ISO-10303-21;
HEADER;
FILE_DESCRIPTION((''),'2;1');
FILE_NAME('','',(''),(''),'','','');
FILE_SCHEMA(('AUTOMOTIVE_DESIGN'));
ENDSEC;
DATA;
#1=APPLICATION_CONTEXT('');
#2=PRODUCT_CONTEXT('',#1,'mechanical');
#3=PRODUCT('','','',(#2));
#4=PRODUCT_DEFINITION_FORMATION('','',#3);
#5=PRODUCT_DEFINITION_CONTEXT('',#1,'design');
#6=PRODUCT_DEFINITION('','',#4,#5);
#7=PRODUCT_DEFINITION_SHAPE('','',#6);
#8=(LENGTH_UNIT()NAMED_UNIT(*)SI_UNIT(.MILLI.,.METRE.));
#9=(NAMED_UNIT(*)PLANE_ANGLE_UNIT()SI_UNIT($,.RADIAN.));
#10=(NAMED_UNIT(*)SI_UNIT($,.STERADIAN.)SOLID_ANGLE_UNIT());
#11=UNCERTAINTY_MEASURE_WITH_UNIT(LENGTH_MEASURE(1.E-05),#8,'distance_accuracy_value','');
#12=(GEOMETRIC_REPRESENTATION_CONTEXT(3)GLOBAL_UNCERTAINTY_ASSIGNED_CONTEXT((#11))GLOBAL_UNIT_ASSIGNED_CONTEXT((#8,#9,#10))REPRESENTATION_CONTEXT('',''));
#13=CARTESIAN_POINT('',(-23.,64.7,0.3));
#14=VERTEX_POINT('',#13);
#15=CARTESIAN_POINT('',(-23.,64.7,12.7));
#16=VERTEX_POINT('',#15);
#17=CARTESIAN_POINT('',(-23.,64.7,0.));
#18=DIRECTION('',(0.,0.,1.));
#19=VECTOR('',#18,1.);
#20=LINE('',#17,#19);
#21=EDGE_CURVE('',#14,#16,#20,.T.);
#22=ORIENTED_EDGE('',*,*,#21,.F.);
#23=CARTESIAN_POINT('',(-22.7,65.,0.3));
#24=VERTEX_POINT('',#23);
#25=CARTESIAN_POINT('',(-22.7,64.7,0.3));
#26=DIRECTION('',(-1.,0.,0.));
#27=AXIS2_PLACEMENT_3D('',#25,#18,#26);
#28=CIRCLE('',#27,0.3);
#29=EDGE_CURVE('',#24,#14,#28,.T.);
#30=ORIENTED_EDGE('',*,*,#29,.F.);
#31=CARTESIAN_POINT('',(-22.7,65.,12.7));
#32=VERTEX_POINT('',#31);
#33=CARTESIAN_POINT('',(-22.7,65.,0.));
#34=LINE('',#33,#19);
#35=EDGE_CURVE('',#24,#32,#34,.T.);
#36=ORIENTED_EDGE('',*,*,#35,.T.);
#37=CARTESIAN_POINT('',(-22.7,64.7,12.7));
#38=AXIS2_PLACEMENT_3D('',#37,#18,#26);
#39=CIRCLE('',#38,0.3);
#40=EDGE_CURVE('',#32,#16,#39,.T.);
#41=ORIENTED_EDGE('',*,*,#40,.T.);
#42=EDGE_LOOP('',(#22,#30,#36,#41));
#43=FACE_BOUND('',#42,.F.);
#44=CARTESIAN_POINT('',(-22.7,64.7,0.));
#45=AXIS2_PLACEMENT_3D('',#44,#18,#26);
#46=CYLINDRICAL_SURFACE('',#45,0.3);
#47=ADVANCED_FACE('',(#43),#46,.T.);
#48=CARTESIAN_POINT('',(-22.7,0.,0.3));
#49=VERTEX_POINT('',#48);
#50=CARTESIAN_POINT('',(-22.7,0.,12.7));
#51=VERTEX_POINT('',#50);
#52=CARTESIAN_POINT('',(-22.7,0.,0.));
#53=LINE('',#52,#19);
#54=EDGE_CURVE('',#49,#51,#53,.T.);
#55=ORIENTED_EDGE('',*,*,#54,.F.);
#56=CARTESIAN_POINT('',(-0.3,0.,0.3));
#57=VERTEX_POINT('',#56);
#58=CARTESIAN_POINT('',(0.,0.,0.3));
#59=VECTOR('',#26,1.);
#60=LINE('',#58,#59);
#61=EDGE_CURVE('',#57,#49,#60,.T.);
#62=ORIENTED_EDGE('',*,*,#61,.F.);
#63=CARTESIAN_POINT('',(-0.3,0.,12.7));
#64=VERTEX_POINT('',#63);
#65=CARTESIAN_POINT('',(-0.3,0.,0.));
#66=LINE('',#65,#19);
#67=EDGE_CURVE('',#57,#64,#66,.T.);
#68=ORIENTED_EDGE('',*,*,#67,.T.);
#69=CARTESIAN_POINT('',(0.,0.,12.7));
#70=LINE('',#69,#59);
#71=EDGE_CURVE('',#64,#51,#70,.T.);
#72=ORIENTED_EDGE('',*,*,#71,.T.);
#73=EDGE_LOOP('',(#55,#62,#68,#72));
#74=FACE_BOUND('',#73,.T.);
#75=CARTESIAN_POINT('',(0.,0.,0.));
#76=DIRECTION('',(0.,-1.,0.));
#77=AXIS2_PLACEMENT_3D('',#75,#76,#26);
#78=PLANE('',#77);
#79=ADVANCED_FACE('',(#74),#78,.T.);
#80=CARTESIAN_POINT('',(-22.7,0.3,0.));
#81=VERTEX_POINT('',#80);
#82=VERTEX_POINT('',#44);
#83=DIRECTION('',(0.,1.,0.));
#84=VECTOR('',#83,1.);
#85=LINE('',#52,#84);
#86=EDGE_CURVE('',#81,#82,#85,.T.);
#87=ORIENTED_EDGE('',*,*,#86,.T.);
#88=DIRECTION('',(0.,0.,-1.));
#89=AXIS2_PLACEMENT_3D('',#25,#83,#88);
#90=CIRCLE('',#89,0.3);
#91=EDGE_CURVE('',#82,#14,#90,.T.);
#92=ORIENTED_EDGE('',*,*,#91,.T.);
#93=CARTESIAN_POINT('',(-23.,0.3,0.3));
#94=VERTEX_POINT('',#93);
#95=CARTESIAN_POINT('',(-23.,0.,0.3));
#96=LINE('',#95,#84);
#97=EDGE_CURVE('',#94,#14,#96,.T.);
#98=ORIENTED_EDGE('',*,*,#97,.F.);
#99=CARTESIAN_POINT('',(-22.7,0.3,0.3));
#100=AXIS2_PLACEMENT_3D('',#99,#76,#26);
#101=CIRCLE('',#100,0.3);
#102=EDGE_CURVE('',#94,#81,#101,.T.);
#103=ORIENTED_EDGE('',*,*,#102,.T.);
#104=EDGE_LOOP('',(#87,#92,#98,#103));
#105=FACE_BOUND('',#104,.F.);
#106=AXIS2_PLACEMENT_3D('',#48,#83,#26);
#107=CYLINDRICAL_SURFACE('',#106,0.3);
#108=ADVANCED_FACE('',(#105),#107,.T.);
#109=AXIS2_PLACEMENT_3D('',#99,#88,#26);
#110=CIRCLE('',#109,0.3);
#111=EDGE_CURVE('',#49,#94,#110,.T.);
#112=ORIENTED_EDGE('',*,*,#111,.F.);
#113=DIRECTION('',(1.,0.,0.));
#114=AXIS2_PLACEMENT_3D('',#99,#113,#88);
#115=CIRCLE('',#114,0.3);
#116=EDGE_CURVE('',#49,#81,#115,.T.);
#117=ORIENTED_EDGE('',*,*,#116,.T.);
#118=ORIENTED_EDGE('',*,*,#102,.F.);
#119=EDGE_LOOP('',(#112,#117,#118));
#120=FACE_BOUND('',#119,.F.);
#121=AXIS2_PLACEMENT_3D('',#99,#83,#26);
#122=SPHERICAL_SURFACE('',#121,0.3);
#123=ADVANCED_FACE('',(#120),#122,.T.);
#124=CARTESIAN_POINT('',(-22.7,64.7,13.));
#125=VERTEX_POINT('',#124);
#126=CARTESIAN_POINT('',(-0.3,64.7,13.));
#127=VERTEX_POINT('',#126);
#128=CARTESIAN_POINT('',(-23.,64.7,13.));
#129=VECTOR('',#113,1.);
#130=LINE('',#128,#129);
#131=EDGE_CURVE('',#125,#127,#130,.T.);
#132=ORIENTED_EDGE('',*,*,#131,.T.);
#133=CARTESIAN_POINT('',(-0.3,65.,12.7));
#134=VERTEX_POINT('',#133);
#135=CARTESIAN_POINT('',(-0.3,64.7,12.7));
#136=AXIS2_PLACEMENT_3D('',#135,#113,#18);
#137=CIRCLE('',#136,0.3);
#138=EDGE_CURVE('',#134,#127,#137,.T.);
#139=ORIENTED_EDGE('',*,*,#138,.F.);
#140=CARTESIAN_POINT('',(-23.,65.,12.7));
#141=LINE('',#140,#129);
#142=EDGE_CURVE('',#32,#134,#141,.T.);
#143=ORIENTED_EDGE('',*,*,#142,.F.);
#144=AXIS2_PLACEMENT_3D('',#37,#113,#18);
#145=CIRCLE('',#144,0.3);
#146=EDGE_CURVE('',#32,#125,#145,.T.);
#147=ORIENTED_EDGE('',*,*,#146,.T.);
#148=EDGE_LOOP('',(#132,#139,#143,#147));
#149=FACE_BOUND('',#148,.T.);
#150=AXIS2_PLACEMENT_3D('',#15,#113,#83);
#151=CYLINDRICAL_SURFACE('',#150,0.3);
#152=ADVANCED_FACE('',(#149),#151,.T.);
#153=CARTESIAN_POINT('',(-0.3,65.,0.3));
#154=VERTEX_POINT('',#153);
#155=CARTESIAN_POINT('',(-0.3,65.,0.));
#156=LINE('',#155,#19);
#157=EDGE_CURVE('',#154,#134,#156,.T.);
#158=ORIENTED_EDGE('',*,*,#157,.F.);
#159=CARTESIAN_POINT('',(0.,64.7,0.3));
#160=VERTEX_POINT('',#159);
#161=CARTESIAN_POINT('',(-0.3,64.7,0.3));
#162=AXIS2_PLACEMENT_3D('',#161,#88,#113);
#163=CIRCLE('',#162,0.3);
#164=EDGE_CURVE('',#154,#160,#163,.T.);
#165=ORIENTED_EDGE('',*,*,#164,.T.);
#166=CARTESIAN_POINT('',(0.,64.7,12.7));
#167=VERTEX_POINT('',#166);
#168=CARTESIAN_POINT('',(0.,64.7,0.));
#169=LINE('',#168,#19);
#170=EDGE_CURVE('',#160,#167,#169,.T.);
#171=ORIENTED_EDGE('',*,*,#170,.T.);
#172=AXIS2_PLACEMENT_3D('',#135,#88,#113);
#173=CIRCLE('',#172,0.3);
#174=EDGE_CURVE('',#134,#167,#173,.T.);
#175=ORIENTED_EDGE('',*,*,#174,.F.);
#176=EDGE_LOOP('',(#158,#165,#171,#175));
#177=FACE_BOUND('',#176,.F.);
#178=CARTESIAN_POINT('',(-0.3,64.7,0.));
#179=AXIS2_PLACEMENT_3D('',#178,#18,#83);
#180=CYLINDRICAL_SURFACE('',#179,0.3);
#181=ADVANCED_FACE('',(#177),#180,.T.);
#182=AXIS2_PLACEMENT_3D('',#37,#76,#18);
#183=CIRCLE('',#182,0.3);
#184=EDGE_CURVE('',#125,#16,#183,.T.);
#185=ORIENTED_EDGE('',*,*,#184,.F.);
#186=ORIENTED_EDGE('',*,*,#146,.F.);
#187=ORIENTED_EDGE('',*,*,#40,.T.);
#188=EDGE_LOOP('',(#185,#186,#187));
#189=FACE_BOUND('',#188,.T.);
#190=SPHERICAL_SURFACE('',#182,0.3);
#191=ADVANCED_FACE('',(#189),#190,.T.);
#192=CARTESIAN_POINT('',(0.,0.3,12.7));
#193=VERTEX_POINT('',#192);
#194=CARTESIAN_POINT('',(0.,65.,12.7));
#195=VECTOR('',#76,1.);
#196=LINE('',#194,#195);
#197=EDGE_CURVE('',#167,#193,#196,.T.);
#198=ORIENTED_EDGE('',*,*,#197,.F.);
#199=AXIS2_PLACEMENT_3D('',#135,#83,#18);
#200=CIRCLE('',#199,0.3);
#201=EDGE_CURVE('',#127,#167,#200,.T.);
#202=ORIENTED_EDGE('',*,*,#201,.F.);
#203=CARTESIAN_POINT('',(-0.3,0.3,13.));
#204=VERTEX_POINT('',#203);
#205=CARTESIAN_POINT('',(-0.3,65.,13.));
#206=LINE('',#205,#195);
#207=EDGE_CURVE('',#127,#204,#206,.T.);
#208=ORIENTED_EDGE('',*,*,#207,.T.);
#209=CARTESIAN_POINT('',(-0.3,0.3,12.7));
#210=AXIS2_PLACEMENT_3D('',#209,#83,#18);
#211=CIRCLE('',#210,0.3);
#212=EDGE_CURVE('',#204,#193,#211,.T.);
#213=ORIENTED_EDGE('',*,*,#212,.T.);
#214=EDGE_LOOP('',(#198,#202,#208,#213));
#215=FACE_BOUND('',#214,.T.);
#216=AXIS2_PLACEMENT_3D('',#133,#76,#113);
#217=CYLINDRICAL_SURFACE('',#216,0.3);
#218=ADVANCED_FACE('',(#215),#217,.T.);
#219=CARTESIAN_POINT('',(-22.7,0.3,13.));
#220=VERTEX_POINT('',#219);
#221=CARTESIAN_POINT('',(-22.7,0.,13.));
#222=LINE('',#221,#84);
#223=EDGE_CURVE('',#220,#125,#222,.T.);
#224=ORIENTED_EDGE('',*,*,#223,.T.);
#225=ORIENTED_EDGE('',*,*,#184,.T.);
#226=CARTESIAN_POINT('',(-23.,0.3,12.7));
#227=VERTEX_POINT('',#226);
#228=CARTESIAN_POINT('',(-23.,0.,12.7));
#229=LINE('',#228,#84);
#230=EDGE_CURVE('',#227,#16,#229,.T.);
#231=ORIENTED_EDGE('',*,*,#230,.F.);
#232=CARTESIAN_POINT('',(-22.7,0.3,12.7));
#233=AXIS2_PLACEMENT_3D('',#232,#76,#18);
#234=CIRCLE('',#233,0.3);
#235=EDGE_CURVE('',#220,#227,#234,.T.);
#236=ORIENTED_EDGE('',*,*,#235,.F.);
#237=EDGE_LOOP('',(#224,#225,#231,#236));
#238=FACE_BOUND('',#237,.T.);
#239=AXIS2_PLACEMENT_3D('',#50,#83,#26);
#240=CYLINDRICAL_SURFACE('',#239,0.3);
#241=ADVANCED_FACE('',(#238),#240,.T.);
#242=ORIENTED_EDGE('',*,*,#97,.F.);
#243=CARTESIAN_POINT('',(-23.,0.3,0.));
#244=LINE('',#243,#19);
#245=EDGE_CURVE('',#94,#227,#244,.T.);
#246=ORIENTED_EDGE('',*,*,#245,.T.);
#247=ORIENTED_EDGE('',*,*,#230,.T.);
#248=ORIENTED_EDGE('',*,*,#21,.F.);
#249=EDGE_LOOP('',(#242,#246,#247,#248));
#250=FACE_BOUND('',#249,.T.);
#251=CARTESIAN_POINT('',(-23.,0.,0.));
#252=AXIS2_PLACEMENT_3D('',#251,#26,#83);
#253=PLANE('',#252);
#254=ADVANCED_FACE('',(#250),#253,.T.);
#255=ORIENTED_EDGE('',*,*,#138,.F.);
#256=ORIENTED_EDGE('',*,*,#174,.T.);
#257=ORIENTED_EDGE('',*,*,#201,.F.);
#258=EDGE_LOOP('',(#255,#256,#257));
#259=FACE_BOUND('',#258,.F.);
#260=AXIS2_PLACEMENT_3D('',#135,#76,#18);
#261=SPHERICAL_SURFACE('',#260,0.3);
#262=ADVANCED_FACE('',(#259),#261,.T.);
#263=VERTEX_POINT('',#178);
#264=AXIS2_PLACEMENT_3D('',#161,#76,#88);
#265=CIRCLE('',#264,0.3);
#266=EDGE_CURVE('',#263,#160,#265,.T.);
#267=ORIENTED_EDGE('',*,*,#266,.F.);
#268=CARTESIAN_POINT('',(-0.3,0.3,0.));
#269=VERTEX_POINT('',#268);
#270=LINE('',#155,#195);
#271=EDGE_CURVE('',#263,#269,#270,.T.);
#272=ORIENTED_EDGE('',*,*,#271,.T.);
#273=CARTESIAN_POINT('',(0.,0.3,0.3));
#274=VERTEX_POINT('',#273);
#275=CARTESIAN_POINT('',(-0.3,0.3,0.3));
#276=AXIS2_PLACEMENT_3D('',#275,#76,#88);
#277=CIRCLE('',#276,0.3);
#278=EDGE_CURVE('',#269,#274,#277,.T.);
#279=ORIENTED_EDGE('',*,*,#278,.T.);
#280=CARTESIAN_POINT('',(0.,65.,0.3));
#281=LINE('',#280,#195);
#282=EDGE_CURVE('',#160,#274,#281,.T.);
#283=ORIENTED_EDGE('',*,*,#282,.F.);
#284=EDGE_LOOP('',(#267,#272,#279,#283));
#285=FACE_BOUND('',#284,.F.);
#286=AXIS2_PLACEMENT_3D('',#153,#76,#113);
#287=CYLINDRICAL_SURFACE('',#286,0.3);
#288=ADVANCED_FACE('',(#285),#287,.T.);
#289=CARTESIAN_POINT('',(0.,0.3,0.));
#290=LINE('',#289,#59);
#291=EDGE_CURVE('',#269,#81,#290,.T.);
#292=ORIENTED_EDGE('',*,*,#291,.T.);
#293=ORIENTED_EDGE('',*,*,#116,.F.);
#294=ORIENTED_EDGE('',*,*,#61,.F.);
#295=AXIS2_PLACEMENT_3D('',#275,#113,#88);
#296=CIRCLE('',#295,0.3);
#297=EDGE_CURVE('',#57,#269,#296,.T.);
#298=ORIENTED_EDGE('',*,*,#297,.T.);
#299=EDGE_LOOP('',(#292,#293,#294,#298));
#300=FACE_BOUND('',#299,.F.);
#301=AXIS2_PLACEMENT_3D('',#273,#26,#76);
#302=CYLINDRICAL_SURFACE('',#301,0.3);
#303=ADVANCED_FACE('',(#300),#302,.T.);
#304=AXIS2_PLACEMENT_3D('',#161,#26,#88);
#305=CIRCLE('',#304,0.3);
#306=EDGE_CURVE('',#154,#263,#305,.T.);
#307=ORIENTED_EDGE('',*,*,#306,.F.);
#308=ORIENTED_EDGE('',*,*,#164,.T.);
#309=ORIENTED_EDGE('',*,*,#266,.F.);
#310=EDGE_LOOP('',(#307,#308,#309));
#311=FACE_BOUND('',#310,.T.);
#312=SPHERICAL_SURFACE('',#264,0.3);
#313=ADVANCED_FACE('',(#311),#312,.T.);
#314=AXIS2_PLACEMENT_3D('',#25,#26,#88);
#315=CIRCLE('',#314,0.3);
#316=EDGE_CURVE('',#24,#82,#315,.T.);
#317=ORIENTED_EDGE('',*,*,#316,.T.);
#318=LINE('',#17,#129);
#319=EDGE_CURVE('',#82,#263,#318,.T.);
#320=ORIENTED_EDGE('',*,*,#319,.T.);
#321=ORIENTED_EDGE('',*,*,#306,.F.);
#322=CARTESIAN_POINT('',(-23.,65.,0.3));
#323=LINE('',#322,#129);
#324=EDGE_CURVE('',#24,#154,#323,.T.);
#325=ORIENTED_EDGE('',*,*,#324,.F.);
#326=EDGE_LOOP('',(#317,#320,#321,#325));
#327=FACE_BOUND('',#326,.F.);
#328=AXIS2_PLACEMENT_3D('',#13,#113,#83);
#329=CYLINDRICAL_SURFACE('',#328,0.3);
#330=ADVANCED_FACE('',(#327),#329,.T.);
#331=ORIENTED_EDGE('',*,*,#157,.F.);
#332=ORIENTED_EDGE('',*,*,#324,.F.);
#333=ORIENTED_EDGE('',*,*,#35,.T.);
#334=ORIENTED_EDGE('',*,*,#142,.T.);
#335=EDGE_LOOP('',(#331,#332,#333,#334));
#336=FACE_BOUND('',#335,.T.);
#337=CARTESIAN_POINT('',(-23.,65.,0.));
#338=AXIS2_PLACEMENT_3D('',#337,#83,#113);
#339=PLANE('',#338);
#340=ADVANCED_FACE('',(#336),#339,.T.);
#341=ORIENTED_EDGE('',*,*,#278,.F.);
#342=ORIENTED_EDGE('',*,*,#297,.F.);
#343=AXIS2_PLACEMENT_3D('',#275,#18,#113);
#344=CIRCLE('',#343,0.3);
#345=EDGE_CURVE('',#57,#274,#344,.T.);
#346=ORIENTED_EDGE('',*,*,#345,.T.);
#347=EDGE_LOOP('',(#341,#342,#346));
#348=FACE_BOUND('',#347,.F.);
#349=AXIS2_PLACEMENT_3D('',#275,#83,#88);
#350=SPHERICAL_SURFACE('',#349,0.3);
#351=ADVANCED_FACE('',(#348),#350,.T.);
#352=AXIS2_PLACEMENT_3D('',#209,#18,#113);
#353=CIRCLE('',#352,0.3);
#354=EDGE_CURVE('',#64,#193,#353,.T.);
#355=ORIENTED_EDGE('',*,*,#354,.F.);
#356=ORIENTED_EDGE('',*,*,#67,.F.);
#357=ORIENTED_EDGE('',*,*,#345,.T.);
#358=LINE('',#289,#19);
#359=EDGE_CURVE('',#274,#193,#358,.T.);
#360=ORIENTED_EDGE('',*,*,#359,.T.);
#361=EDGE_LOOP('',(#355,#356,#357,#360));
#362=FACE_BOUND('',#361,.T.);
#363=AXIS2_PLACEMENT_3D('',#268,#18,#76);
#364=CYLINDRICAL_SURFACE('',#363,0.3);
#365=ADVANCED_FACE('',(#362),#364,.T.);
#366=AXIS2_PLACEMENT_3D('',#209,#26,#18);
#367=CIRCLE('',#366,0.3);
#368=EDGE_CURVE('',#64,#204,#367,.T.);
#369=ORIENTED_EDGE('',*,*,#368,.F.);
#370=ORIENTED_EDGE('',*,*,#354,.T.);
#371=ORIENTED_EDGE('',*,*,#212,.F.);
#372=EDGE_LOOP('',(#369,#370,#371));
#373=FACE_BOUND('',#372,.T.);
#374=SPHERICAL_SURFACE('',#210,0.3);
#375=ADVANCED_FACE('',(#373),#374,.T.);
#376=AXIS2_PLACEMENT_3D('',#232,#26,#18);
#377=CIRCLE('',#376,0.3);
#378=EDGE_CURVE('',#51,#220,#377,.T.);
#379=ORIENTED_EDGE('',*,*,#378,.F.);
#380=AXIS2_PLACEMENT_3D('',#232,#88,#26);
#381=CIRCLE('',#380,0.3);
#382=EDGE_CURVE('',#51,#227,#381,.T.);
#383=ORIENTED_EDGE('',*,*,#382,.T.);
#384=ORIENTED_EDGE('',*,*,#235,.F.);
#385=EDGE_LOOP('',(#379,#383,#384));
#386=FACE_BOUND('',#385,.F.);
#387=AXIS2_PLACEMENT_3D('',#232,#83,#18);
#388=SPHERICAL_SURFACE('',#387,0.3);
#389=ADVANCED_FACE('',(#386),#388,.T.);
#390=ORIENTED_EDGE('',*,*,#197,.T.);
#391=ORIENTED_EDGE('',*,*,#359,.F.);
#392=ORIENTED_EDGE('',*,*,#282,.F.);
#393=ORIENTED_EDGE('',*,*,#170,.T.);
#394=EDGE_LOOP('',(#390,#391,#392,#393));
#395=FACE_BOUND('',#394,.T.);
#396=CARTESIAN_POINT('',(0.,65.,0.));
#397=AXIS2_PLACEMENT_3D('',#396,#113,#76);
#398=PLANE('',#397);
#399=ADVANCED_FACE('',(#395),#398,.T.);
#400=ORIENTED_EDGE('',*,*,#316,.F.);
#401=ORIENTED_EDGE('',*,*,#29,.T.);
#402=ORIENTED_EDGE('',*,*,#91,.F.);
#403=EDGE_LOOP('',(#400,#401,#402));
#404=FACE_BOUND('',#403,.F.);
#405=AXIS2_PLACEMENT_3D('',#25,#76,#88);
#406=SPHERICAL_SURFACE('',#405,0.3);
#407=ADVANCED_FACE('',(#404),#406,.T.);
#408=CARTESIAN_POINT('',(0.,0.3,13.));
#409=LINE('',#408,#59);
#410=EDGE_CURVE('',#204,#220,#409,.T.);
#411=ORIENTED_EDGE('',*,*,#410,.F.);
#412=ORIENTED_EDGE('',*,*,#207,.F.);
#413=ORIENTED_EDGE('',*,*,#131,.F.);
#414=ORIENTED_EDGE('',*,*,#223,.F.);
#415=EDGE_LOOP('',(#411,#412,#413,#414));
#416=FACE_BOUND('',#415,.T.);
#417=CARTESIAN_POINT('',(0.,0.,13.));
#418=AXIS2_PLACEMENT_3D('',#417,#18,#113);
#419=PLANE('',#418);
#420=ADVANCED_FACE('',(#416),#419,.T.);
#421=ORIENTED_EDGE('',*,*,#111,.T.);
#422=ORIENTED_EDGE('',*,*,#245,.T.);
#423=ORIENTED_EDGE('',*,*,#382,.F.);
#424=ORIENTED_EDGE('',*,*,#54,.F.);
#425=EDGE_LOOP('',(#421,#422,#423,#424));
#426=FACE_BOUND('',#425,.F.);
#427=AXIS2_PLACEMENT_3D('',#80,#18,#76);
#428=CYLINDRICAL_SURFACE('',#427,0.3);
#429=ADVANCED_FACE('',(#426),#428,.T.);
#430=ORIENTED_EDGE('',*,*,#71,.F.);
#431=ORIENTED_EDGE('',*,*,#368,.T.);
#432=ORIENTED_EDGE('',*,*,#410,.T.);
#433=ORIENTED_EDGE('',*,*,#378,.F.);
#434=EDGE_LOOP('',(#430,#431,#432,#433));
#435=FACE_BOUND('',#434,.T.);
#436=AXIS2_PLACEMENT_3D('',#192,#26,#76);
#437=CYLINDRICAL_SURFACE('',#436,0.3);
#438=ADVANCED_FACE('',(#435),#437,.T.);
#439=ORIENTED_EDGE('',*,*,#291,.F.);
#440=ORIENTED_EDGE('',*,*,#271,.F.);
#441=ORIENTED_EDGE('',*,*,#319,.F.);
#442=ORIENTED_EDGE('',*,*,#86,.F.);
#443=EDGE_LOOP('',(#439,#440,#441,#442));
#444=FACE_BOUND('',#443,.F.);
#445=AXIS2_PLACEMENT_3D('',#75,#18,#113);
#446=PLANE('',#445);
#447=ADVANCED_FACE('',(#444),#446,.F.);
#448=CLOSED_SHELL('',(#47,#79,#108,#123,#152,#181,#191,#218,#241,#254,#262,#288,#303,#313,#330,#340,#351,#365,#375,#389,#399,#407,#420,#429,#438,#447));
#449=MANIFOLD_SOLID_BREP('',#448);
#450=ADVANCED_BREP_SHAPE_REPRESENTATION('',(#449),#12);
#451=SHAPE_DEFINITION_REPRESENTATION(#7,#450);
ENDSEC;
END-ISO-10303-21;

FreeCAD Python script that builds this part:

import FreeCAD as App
import Part
import Sketcher

V = App.Vector
Q = App.Units.Quantity


def add_polygon(sketch, points):
    """Adds a closed chain of lines whose ends are joined by coincident constraints."""
    first, n = sketch.GeometryCount, len(points)
    for a, b in zip(points, points[1:] + points[:1]):
        sketch.addGeometry(Part.LineSegment(App.Vector(*a, 0), App.Vector(*b, 0)), False)
    for i in range(n):
        sketch.addConstraint(Sketcher.Constraint("Coincident", first + i, 2, first + (i + 1) % n, 1))

doc = App.newDocument("Part")
body = doc.addObject("PartDesign::Body", "Body")

# Sketch on XY plane
sketch1 = doc.addObject("Sketcher::SketchObject", "Sketch")
body.addObject(sketch1)
sketch1.AttachmentSupport = (doc.XY_Plane, [""])
sketch1.MapMode = "FlatFace"
add_polygon(sketch1, [(-23, 0), (0, 0), (0, 65), (-23, 65)])  # lines 0-3
sketch1.addConstraint([
    Sketcher.Constraint("Horizontal", 0),
    Sketcher.Constraint("Vertical", 1),
    Sketcher.Constraint("Horizontal", 2),
    Sketcher.Constraint("Vertical", 3),
    Sketcher.Constraint("Coincident", 0, 2, -1, 1),
    Sketcher.Constraint("DistanceX", 0, 1, 0, 2, Q("23 mm")),
    Sketcher.Constraint("DistanceY", 1, 1, 1, 2, Q("65 mm")),
])
pad1 = doc.addObject("PartDesign::Pad", "Pad")
body.addObject(pad1)
pad1.Profile = sketch1
pad1.Length = 13
doc.recompute()

fillet = doc.addObject("PartDesign::Fillet", "Fillet")
body.addObject(fillet)
fillet.Base = (pad1, ["Edge1"])
fillet.UseAllEdges = True
fillet.Radius = 0.3

doc.recompute()
